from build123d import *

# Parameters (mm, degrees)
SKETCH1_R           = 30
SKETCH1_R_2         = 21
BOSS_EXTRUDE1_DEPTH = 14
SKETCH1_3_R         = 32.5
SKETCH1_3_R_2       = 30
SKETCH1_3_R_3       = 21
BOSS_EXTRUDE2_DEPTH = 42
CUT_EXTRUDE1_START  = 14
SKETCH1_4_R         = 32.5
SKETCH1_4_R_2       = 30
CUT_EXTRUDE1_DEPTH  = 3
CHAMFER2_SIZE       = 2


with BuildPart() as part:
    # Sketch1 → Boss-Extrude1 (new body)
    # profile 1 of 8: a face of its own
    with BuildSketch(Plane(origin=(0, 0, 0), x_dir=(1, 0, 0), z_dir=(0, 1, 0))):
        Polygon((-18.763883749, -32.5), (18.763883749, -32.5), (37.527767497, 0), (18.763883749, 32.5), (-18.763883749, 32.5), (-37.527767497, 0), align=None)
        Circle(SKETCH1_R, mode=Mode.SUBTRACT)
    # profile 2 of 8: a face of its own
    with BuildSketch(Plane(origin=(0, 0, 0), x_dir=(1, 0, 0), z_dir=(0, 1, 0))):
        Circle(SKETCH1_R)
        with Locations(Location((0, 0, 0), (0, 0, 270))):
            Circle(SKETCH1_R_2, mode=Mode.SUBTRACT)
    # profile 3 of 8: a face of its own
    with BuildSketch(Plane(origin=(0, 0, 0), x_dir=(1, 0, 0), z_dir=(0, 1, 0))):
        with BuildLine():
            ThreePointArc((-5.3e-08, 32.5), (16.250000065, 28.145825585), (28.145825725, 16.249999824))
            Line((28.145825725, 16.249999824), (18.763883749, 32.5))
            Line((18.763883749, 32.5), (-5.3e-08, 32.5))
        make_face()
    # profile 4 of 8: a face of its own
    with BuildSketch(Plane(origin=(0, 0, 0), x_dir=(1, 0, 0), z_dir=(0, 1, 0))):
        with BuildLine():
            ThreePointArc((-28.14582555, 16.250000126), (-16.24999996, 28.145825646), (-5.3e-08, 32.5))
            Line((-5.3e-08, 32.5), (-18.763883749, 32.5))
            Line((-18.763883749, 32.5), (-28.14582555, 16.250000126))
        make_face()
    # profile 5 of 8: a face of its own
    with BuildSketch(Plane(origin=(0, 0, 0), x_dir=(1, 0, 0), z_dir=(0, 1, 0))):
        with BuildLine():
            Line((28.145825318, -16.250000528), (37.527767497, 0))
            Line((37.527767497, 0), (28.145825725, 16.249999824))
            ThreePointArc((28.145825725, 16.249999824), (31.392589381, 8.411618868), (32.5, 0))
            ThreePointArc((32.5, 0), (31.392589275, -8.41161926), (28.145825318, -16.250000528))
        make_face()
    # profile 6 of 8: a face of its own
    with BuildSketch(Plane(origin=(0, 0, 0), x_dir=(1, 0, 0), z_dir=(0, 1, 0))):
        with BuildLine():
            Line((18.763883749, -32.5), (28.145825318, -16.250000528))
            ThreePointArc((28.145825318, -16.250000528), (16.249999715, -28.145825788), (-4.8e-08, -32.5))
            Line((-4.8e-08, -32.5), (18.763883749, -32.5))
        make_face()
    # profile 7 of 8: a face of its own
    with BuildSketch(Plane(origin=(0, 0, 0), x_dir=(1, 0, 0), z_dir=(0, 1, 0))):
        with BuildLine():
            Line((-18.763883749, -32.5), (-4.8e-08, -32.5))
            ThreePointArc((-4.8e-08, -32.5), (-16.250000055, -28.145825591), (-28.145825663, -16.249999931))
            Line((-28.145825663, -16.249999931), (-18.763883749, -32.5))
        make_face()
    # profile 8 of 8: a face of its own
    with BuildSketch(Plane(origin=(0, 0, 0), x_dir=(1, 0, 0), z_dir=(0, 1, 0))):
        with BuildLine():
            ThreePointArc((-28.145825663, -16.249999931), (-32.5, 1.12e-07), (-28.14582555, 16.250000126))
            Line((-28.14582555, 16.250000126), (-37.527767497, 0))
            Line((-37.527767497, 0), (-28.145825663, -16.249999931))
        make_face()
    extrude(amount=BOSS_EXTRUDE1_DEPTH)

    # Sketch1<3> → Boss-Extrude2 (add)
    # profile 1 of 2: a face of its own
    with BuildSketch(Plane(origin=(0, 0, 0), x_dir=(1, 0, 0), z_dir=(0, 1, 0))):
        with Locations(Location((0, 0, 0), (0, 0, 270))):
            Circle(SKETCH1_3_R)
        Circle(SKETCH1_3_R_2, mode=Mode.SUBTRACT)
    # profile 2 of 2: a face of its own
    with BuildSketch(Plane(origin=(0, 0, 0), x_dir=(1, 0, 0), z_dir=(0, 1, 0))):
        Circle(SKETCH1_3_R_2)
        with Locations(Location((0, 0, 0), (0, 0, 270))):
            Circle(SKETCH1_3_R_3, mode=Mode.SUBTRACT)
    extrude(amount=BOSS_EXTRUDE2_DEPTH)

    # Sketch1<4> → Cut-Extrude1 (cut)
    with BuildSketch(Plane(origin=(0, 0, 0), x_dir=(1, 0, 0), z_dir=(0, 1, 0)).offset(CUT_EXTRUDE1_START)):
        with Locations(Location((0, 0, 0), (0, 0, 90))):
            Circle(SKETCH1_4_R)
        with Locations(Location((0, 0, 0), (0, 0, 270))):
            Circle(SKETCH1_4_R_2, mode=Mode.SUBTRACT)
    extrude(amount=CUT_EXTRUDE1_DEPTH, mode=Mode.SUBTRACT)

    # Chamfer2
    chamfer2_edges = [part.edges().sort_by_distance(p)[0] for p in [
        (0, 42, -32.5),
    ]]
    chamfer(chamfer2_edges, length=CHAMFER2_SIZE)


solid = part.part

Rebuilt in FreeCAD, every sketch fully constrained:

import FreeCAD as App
import Part
import Sketcher
Q = App.Units.Quantity


def edges_at(feature, points):
    """Names of the edges that pass closest to the given points."""
    edges = feature.Shape.Edges
    near = lambda p: min(range(len(edges)), key=lambda i: edges[i].distToShape(Part.Vertex(*p))[0])
    return sorted({f"Edge{near(p) + 1}" for p in points})


def add_polygon(sketch, points):
    """Adds a closed chain of lines whose ends are joined by coincident constraints."""
    first, n = sketch.GeometryCount, len(points)
    for a, b in zip(points, points[1:] + points[:1]):
        sketch.addGeometry(Part.LineSegment(App.Vector(*a, 0), App.Vector(*b, 0)), False)
    for i in range(n):
        sketch.addConstraint(Sketcher.Constraint("Coincident", first + i, 2, first + (i + 1) % n, 1))

doc = App.newDocument("Part")
body = doc.addObject("PartDesign::Body", "Body")

# Sketch on XZ plane
sketch1 = doc.addObject("Sketcher::SketchObject", "Sketch")
body.addObject(sketch1)
sketch1.AttachmentSupport = (doc.XZ_Plane, [""])
sketch1.MapMode = "FlatFace"
add_polygon(sketch1, [(-18.763884, 32.5), (18.763884, 32.5), (37.527767, 0), (18.763884, -32.5), (-18.763884, -32.5), (-37.527767, 0)])  # lines 0-5
sketch1.addGeometry(Part.Circle(App.Vector(0, 0, 0), App.Vector(0, 0, 1), 21), False)  # 6
sketch1.addConstraint([
    Sketcher.Constraint("Horizontal", 0),
    Sketcher.Constraint("Horizontal", 3),
    Sketcher.Constraint("Coincident", 6, 3, -1, 1),
    Sketcher.Constraint("Symmetric", 0, 2, 3, 2, -1, 1),
    Sketcher.Constraint("Symmetric", 1, 2, 4, 2, -1, 1),
    Sketcher.Constraint("PointOnObject", 1, 2, -1),
    Sketcher.Constraint("Parallel", 2, 5),
    Sketcher.Constraint("Vertical", 0, 2, 2, 2),
    Sketcher.Constraint("Diameter", 6, Q("42 mm")),
    Sketcher.Constraint("Angle", 1, Q("-60 deg")),
    Sketcher.Constraint("DistanceY", 2, 2, 0, 2, Q("65 mm")),
    Sketcher.Constraint("DistanceX", 0, 1, 0, 2, Q("37.527767 mm")),
])
pad1 = doc.addObject("PartDesign::Pad", "Pad")
body.addObject(pad1)
pad1.Profile = sketch1
pad1.Length = 14
pad1.Reversed = True

# Sketch on XZ plane
sketch2 = doc.addObject("Sketcher::SketchObject", "Sketch001")
body.addObject(sketch2)
sketch2.AttachmentSupport = (doc.XZ_Plane, [""])
sketch2.MapMode = "FlatFace"
sketch2.addGeometry([
    Part.Circle(App.Vector(0, 0, 0), App.Vector(0, 0, 1), 32.5),
    Part.Circle(App.Vector(0, 0, 0), App.Vector(0, 0, 1), 21),
], False)
sketch2.addConstraint([
    Sketcher.Constraint("Coincident", 0, 3, -1, 1),
    Sketcher.Constraint("Coincident", 1, 3, -1, 1),
    Sketcher.Constraint("Diameter", 0, Q("65 mm")),
    Sketcher.Constraint("Diameter", 1, Q("42 mm")),
])
pad2 = doc.addObject("PartDesign::Pad", "Pad001")
body.addObject(pad2)
pad2.Profile = sketch2
pad2.Length = 42
pad2.Reversed = True

# Sketch on XZ plane
sketch3 = doc.addObject("Sketcher::SketchObject", "Sketch002")
body.addObject(sketch3)
sketch3.AttachmentSupport = (doc.XZ_Plane, [""])
sketch3.MapMode = "FlatFace"
sketch3.AttachmentOffset = App.Placement(App.Vector(0, 0, -14), App.Rotation())
sketch3.addGeometry([
    Part.Circle(App.Vector(0, 0, 0), App.Vector(0, 0, 1), 32.5),
    Part.Circle(App.Vector(0, 0, 0), App.Vector(0, 0, 1), 30),
], False)
sketch3.addConstraint([
    Sketcher.Constraint("Coincident", 0, 3, -1, 1),
    Sketcher.Constraint("Coincident", 1, 3, -1, 1),
    Sketcher.Constraint("Diameter", 0, Q("65 mm")),
    Sketcher.Constraint("Diameter", 1, Q("60 mm")),
])
pocket1 = doc.addObject("PartDesign::Pocket", "Pocket")
body.addObject(pocket1)
pocket1.Profile = sketch3
pocket1.Length = 3
doc.recompute()

chamfer = doc.addObject("PartDesign::Chamfer", "Chamfer")
body.addObject(chamfer)
chamfer.Base = (pocket1, edges_at(pocket1, [(0, 42, -32.5)]))
chamfer.Size = 2

doc.recompute()
